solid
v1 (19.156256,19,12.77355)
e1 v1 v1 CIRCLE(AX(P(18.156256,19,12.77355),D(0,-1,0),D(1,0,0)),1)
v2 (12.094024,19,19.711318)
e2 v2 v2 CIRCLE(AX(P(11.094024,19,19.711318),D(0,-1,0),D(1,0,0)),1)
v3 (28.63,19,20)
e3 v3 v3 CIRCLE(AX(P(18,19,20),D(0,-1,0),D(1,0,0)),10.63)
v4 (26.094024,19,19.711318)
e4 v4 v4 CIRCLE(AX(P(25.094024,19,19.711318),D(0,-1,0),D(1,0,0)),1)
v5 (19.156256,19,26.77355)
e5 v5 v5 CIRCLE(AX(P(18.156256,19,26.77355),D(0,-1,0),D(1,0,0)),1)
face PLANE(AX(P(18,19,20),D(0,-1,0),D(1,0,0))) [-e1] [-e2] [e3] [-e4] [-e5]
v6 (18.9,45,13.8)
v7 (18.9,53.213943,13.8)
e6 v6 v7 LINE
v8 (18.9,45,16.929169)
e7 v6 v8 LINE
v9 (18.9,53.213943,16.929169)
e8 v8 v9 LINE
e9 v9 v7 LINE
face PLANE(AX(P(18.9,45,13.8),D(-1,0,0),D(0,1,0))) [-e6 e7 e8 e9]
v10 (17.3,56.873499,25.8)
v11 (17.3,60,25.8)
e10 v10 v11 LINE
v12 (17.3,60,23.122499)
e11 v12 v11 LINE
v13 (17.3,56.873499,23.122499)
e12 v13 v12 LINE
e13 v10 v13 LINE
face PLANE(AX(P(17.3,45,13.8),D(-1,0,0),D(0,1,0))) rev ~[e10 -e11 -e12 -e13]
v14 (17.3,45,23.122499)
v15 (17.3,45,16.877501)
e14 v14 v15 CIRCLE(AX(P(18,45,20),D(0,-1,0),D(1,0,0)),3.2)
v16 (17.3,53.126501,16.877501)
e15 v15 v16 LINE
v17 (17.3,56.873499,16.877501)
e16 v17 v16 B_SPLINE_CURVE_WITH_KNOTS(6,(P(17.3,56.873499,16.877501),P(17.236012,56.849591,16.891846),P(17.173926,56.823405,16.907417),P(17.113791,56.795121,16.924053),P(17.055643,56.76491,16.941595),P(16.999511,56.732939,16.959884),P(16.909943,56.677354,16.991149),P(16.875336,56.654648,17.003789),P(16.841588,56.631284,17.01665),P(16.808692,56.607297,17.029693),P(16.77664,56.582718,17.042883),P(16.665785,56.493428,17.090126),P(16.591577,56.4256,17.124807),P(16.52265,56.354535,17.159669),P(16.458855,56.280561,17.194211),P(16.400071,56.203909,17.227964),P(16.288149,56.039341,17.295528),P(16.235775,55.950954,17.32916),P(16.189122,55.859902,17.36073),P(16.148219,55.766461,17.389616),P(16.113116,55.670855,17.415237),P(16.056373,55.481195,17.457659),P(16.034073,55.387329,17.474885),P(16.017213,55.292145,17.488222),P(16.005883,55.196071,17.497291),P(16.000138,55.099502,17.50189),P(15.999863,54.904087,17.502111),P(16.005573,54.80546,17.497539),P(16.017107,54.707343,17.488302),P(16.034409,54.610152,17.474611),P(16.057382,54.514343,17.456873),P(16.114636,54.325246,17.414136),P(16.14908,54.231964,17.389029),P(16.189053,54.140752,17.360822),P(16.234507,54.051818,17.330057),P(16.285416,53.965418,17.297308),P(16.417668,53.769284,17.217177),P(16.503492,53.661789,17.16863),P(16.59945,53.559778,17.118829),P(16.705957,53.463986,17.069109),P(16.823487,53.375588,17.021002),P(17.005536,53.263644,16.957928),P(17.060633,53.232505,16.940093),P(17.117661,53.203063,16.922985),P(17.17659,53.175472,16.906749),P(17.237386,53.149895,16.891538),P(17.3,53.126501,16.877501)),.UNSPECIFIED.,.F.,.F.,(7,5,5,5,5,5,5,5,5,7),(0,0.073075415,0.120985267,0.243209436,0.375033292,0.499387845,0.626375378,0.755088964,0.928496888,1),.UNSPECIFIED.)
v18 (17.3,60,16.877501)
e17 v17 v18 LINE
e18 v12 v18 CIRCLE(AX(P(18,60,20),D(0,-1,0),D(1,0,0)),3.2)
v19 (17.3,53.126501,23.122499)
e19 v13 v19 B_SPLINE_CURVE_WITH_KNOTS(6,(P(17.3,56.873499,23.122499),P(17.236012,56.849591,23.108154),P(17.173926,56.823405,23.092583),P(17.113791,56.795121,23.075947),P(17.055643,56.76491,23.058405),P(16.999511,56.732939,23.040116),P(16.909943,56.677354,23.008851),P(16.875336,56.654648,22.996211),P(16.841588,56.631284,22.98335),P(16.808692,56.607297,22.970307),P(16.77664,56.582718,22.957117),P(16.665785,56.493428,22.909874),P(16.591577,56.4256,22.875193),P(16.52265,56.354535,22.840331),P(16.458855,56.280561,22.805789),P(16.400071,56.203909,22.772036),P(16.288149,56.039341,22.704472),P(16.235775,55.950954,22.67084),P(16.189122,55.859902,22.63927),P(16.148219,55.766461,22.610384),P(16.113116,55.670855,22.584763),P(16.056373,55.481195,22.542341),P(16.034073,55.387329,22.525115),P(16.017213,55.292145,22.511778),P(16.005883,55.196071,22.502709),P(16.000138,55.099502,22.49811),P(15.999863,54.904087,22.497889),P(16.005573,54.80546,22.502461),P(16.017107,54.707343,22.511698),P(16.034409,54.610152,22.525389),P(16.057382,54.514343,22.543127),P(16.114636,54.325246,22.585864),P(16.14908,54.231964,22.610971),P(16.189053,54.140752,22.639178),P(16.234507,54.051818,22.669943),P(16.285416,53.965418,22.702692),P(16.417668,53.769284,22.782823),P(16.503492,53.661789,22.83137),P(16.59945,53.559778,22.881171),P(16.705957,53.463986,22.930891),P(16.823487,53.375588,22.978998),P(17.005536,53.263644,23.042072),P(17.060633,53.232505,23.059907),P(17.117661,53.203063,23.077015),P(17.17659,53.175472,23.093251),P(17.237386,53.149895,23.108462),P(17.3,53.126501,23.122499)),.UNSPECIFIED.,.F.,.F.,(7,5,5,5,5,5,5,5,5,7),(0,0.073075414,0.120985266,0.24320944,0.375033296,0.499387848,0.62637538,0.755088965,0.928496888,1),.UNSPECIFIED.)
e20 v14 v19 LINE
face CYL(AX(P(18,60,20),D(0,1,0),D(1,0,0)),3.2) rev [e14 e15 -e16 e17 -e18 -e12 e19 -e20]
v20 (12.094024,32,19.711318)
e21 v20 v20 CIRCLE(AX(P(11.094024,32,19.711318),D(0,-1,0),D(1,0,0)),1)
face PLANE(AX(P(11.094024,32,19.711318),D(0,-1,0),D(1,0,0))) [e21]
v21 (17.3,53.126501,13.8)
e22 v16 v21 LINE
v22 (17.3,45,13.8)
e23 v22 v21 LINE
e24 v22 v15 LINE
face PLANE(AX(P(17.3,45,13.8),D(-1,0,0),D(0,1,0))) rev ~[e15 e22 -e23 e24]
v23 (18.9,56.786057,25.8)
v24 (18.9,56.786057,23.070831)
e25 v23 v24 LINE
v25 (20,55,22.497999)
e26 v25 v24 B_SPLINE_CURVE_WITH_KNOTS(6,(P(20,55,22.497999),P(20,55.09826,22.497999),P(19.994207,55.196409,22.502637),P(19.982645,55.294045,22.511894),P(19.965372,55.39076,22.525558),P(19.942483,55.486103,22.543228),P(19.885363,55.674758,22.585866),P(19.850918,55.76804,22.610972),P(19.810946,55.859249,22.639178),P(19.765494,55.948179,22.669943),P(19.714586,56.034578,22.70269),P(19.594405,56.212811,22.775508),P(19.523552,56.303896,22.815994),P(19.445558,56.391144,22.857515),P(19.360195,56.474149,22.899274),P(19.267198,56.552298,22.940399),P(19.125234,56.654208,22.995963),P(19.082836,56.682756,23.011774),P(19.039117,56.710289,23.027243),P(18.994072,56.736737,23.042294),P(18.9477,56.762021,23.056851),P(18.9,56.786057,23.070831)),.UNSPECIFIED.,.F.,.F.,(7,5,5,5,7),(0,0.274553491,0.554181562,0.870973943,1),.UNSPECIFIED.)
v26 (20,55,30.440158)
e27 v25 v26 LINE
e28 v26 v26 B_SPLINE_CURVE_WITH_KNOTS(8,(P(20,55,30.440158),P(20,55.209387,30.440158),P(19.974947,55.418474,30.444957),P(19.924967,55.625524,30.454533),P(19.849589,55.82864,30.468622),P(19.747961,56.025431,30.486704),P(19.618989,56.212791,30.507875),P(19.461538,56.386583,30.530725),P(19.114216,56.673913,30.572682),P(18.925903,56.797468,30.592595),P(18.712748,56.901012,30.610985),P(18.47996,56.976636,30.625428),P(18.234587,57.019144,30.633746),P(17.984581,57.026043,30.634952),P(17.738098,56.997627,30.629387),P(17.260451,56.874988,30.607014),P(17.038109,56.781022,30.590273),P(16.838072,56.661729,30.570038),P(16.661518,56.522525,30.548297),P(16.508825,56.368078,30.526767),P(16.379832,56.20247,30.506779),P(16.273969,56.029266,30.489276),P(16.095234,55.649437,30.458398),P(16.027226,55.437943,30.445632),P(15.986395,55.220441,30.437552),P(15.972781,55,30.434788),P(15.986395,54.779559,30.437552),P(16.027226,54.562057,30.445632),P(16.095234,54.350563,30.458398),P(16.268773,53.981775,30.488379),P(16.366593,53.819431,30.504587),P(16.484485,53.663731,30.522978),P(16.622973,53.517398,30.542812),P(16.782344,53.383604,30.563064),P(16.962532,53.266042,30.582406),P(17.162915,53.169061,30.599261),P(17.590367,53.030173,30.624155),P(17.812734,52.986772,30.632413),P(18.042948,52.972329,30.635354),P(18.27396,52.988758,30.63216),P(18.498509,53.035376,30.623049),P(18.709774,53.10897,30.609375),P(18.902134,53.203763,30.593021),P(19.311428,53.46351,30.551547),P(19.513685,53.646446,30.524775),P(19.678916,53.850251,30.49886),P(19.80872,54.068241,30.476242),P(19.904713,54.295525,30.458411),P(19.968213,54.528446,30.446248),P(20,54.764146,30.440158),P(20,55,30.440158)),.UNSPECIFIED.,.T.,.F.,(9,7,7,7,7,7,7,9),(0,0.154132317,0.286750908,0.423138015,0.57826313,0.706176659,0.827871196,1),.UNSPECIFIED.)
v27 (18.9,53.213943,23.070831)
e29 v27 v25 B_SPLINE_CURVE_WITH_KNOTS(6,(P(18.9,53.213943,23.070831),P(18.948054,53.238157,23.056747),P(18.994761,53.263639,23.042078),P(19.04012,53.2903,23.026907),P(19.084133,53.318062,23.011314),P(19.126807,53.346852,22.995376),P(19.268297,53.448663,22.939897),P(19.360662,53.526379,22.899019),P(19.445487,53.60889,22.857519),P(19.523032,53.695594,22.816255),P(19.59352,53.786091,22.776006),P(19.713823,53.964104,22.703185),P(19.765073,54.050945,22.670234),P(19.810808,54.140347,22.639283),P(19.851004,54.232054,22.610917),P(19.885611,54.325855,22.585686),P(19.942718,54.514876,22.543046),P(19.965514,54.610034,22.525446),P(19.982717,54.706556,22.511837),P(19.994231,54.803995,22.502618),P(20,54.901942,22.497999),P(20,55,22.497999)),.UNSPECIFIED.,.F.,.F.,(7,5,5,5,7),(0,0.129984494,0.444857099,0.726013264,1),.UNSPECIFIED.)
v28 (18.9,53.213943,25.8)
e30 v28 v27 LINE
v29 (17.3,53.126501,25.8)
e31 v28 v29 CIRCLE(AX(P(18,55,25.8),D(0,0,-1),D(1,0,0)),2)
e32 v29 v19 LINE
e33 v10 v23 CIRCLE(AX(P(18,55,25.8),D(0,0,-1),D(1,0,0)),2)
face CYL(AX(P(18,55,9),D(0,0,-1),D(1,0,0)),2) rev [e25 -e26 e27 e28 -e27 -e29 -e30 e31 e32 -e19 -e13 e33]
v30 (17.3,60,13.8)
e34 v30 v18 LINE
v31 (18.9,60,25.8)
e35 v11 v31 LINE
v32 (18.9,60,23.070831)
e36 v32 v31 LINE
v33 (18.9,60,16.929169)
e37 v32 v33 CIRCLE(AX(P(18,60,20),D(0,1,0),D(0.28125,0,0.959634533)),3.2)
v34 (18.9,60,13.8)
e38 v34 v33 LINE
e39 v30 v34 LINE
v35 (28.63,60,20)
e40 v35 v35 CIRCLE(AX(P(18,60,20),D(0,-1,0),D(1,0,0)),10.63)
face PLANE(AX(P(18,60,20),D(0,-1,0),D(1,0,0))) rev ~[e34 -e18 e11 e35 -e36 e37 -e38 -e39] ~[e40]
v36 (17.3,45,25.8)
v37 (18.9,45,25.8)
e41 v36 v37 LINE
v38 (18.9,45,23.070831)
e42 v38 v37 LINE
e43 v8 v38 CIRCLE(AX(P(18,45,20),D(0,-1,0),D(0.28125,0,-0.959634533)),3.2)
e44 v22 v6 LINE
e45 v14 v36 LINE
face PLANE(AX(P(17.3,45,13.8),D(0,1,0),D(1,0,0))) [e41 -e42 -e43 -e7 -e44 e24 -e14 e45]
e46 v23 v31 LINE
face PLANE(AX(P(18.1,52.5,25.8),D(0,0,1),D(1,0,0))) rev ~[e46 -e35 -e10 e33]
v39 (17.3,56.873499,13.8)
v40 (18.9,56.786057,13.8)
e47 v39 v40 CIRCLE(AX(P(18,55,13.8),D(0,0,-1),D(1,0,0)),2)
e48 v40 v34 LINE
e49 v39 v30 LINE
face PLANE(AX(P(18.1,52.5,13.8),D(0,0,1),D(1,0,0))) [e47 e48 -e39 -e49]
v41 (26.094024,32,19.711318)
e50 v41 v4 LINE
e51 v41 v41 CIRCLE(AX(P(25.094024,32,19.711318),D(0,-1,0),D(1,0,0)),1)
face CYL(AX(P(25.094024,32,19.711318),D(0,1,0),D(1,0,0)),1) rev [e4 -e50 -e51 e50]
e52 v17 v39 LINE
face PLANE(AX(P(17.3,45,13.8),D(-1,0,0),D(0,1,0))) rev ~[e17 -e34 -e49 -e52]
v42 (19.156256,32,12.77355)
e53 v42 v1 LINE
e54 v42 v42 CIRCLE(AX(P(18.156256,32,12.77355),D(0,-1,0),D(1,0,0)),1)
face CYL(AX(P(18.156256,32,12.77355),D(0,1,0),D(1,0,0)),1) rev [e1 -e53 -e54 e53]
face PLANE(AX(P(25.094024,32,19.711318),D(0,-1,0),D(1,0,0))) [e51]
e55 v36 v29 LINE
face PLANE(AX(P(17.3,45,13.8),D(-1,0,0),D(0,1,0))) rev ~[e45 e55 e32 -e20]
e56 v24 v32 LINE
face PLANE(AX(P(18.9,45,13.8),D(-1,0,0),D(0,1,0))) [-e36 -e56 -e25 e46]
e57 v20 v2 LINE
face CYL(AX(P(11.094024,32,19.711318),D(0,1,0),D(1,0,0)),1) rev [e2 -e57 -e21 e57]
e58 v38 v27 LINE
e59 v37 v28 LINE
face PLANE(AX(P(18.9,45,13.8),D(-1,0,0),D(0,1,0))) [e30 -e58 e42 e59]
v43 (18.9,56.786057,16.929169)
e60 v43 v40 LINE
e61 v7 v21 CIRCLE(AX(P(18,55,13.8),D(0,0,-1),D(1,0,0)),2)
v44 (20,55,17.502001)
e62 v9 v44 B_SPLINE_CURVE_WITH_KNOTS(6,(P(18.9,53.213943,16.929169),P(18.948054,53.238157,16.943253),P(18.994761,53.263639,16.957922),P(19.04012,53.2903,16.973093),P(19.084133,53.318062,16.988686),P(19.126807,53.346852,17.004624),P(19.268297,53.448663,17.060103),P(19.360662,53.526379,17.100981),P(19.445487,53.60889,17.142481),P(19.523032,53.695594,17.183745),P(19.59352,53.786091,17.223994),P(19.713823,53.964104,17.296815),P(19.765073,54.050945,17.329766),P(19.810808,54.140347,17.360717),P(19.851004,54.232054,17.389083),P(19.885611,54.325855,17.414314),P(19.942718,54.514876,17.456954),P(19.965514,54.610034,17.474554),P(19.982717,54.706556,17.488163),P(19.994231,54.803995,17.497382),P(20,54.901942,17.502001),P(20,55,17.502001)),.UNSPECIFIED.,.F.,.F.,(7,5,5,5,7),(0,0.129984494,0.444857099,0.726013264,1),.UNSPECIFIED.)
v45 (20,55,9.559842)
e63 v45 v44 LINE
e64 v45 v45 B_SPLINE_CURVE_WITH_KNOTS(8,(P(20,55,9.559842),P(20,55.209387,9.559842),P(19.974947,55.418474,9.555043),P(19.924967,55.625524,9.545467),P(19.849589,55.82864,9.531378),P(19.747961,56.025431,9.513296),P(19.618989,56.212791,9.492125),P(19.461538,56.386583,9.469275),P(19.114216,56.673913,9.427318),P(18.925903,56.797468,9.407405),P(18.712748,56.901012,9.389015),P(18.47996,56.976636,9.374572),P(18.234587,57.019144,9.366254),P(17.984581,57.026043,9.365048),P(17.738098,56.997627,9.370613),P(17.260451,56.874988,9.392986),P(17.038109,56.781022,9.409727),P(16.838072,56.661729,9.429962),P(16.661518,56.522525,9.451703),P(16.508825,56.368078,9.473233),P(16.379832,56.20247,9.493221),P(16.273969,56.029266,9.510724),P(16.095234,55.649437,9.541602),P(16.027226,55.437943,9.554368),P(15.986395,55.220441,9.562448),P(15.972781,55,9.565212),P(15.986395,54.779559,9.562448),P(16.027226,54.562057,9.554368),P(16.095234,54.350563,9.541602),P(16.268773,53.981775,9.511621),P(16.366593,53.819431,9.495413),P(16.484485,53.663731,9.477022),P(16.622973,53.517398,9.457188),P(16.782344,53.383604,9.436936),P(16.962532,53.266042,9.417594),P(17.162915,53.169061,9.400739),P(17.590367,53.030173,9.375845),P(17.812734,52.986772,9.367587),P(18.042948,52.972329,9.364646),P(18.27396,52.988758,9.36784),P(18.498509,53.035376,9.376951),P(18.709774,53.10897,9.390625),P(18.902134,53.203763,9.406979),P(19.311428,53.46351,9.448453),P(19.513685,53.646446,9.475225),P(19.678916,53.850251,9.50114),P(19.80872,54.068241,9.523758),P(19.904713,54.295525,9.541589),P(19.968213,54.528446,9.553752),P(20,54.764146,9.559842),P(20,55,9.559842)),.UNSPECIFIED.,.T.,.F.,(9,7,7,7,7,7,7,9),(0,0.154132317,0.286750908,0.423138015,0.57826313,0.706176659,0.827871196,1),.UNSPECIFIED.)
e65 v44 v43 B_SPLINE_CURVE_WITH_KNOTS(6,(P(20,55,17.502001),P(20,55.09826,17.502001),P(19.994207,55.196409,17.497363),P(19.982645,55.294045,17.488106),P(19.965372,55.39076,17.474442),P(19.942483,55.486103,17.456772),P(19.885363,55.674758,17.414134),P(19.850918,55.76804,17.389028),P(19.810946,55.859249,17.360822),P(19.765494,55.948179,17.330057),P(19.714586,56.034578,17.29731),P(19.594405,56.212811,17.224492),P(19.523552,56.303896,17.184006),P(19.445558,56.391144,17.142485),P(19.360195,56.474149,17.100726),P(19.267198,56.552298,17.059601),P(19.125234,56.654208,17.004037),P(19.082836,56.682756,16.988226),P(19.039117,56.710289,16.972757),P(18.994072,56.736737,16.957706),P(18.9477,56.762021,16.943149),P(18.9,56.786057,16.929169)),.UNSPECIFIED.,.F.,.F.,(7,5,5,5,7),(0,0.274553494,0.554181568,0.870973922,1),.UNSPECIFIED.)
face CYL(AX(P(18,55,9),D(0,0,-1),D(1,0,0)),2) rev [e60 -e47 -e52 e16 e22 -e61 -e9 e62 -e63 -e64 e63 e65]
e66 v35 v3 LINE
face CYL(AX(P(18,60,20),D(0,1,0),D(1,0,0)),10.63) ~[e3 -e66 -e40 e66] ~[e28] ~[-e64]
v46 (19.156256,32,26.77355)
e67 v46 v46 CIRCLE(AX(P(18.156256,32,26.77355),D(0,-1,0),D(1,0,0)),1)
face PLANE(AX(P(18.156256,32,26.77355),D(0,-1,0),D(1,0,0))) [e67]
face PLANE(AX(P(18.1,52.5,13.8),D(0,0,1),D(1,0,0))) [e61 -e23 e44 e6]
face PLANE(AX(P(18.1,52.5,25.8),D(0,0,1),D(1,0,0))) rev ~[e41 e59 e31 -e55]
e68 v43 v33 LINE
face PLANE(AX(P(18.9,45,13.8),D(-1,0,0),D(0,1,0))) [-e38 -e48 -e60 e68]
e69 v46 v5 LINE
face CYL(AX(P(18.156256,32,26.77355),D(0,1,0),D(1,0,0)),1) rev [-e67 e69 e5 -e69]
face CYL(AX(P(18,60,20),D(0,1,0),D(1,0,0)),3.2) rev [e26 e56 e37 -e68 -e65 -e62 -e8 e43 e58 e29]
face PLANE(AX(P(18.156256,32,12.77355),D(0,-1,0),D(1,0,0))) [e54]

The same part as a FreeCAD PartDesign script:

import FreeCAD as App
import Part
import Sketcher
from FreeCAD import Vector


def add_polygon(sketch, points):
    """Adds a closed chain of lines whose ends are joined by coincident constraints."""
    first, n = sketch.GeometryCount, len(points)
    for a, b in zip(points, points[1:] + points[:1]):
        sketch.addGeometry(Part.LineSegment(App.Vector(*a, 0), App.Vector(*b, 0)), False)
    for i in range(n):
        sketch.addConstraint(Sketcher.Constraint("Coincident", first + i, 2, first + (i + 1) % n, 1))

doc = App.newDocument("Part")
body = doc.addObject("PartDesign::Body", "Body")
body.AllowCompound = True

# Sketch on XZ plane
sketch1 = doc.addObject("Sketcher::SketchObject", "Sketch")
body.addObject(sketch1)
sketch1.AttachmentSupport = (doc.XZ_Plane, [""])
sketch1.MapMode = "FlatFace"
sketch1.addGeometry(Part.Circle(Vector(11.1, 19.7, 0), Vector(0, 0, 1), 1), False)
sketch1.addGeometry(Part.Circle(Vector(25.1, 19.7, 0), Vector(0, 0, 1), 1), False)
sketch1.addGeometry(Part.Circle(Vector(18.2, 26.8, 0), Vector(0, 0, 1), 1), False)
sketch1.addGeometry(Part.Circle(Vector(18.2, 12.8, 0), Vector(0, 0, 1), 1), False)
sketch1.addConstraint(Sketcher.Constraint("Equal", 0, 1))
sketch1.addConstraint(Sketcher.Constraint("Equal", 1, 2))
sketch1.addConstraint(Sketcher.Constraint("Equal", 2, 3))
sketch1.addConstraint(Sketcher.Constraint("Horizontal", 0, 3, 1, 3))
sketch1.addConstraint(Sketcher.Constraint("Vertical", 2, 3, 3, 3))
sketch1.addConstraint(Sketcher.Constraint("Diameter", 0, 2.0))
sketch1.addConstraint(Sketcher.Constraint("DistanceX", 0, 3, 1, 3, 14.0))
sketch1.addConstraint(Sketcher.Constraint("DistanceY", 3, 3, 2, 3, 14.0))
sketch1.addConstraint(Sketcher.Constraint("DistanceY", -1, 1, 2, 3, 26.77355))
sketch1.addConstraint(Sketcher.Constraint("DistanceX", 2, 3, 1, 3, 6.937768))
sketch1.addConstraint(Sketcher.Constraint("DistanceX", -1, 1, 0, 3, 11.094024))
sketch1.addConstraint(Sketcher.Constraint("DistanceY", -1, 1, 0, 3, 19.711318))
pad1 = doc.addObject("PartDesign::Pad", "Pad")
body.addObject(pad1)
pad1.Profile = sketch1
pad1.Length = 13
body2 = doc.addObject("PartDesign::Body", "Body001")
body2.AllowCompound = True
doc.recompute()

body.Placement = App.Placement(Vector(0, 32, 0), App.Rotation(Vector(0, 0, 1), 0))
boolean = doc.addObject("PartDesign::Boolean", "Boolean")
body2.addObject(boolean)
boolean.Type = "Fuse"
boolean.addObjects([body])
body3 = doc.addObject("PartDesign::Body", "Body002")

# Sketch on XY plane
sketch2 = doc.addObject("Sketcher::SketchObject", "Sketch001")
body3.addObject(sketch2)
sketch2.AttachmentSupport = (doc.getObject("XY_Plane002"), [""])
sketch2.MapMode = "FlatFace"
sketch2.AttachmentOffset = App.Placement(Vector(0, 0, 13.8), App.Rotation())
add_polygon(sketch2, [(17.3, 60), (17.3, 45), (18.9, 45), (18.9, 60)])  # lines 0-3
sketch2.addConstraint(Sketcher.Constraint("Vertical", 0))
sketch2.addConstraint(Sketcher.Constraint("Horizontal", 1))
sketch2.addConstraint(Sketcher.Constraint("Vertical", 2))
sketch2.addConstraint(Sketcher.Constraint("Horizontal", 3))
sketch2.addConstraint(Sketcher.Constraint("DistanceY", 0, 2, 0, 1, 15.0))
sketch2.addConstraint(Sketcher.Constraint("DistanceX", 1, 1, 1, 2, 1.6))
sketch2.addConstraint(Sketcher.Constraint("DistanceY", -1, 1, 0, 2, 45.0))
sketch2.addConstraint(Sketcher.Constraint("DistanceX", -1, 1, 0, 2, 17.3))
pad2 = doc.addObject("PartDesign::Pad", "Pad001")
body3.addObject(pad2)
pad2.Profile = sketch2
pad2.Length = 12
body4 = doc.addObject("PartDesign::Body", "Body003")

# Sketch on XY plane
sketch3 = doc.addObject("Sketcher::SketchObject", "Sketch002")
body4.addObject(sketch3)
sketch3.AttachmentSupport = (doc.getObject("XY_Plane003"), [""])
sketch3.MapMode = "FlatFace"
sketch3.AttachmentOffset = App.Placement(Vector(0, 0, 9), App.Rotation())
sketch3.addGeometry(Part.Circle(Vector(18, 55, 0), Vector(0, 0, 1), 2), False)
sketch3.addConstraint(Sketcher.Constraint("Diameter", 0, 4.0))
sketch3.addConstraint(Sketcher.Constraint("DistanceX", -1, 1, 0, 3, 18.0))
sketch3.addConstraint(Sketcher.Constraint("DistanceY", -1, 1, 0, 3, 55.0))
pad3 = doc.addObject("PartDesign::Pad", "Pad002")
body4.addObject(pad3)
pad3.Profile = sketch3
pad3.Length = 22
body5 = doc.addObject("PartDesign::Body", "Body004")

# Sketch on XZ plane
sketch4 = doc.addObject("Sketcher::SketchObject", "Sketch003")
body5.addObject(sketch4)
sketch4.AttachmentSupport = (doc.getObject("XZ_Plane004"), [""])
sketch4.MapMode = "FlatFace"
sketch4.AttachmentOffset = App.Placement(Vector(0, 0, -60), App.Rotation())
sketch4.addGeometry(Part.Circle(Vector(18, 20, 0), Vector(0, 0, 1), 3.2), False)
sketch4.addConstraint(Sketcher.Constraint("Diameter", 0, 6.4))
sketch4.addConstraint(Sketcher.Constraint("DistanceX", -1, 1, 0, 3, 18.0))
sketch4.addConstraint(Sketcher.Constraint("DistanceY", -1, 1, 0, 3, 20.0))
pad4 = doc.addObject("PartDesign::Pad", "Pad003")
body5.addObject(pad4)
pad4.Profile = sketch4
pad4.Length = 15
doc.recompute()

boolean2 = doc.addObject("PartDesign::Boolean", "Boolean001")
body5.addObject(boolean2)
boolean2.Type = "Fuse"
boolean2.addObjects([body3])
doc.recompute()

boolean3 = doc.addObject("PartDesign::Boolean", "Boolean002")
body5.addObject(boolean3)
boolean3.Type = "Fuse"
boolean3.addObjects([body4])
body6 = doc.addObject("PartDesign::Body", "Body005")

# Sketch on XZ plane
sketch5 = doc.addObject("Sketcher::SketchObject", "Sketch004")
body6.addObject(sketch5)
sketch5.AttachmentSupport = (doc.getObject("XZ_Plane005"), [""])
sketch5.MapMode = "FlatFace"
sketch5.AttachmentOffset = App.Placement(Vector(0, 0, -60), App.Rotation())
sketch5.addGeometry(Part.Circle(Vector(18, 20, 0), Vector(0, 0, 1), 11), False)
sketch5.addConstraint(Sketcher.Constraint("Diameter", 0, 21.26))
sketch5.addConstraint(Sketcher.Constraint("DistanceX", -1, 1, 0, 3, 18.0))
sketch5.addConstraint(Sketcher.Constraint("DistanceY", -1, 1, 0, 3, 20.0))
pad5 = doc.addObject("PartDesign::Pad", "Pad004")
body6.addObject(pad5)
pad5.Profile = sketch5
pad5.Length = 41
doc.recompute()

boolean4 = doc.addObject("PartDesign::Boolean", "Boolean003")
body6.addObject(boolean4)
boolean4.Type = "Cut"
boolean4.addObjects([body5])
doc.recompute()

boolean5 = doc.addObject("PartDesign::Boolean", "Boolean004")
body6.addObject(boolean5)
boolean5.Type = "Cut"
boolean5.addObjects([body2])

doc.recompute()
